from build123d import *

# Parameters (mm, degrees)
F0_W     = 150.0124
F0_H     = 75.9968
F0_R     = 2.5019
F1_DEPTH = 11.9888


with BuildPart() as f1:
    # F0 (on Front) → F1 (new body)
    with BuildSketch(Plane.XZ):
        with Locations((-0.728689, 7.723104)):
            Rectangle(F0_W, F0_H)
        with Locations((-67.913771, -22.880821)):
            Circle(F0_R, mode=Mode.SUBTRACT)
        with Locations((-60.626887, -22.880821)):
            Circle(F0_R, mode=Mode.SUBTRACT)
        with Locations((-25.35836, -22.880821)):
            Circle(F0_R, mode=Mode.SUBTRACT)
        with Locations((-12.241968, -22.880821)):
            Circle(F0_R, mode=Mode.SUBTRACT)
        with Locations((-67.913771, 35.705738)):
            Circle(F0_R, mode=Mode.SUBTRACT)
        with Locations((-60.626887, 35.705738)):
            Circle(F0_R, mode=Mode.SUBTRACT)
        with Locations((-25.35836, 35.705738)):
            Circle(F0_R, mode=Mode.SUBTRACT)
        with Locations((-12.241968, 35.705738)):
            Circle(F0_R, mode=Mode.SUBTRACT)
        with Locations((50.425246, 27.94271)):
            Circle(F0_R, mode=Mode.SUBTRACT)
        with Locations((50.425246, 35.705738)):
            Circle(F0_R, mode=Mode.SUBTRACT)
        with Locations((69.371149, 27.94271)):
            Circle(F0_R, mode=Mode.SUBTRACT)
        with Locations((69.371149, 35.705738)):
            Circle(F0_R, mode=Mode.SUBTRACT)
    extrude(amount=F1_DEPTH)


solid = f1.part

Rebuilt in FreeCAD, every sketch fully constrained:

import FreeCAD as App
import Part
import Sketcher

V = App.Vector
Q = App.Units.Quantity


def add_polygon(sketch, points):
    """Adds a closed chain of lines whose ends are joined by coincident constraints."""
    first, n = sketch.GeometryCount, len(points)
    for a, b in zip(points, points[1:] + points[:1]):
        sketch.addGeometry(Part.LineSegment(App.Vector(*a, 0), App.Vector(*b, 0)), False)
    for i in range(n):
        sketch.addConstraint(Sketcher.Constraint("Coincident", first + i, 2, first + (i + 1) % n, 1))

doc = App.newDocument("Part")
body = doc.addObject("PartDesign::Body", "Body")

sketch1 = body.newObject("Sketcher::SketchObject", "Sketch")
sketch1.AttachmentSupport = (doc.getObject("XZ_Plane"), [""])
sketch1.MapMode = "FlatFace"
add_polygon(sketch1, [(-75.7, 45.7), (-75.7, -30.3), (74.3, -30.3), (74.3, 45.7)])
sketch1.addGeometry(Part.Circle(V(-67.9, -22.9, 0), V(0, 0, 1), 2.5), False)
sketch1.addGeometry(Part.Circle(V(-60.6, -22.9, 0), V(0, 0, 1), 2.5), False)
sketch1.addGeometry(Part.Circle(V(-25.4, -22.9, 0), V(0, 0, 1), 2.5), False)
sketch1.addGeometry(Part.Circle(V(-12.2, -22.9, 0), V(0, 0, 1), 2.5), False)
sketch1.addGeometry(Part.Circle(V(-67.9, 35.7, 0), V(0, 0, 1), 2.5), False)
sketch1.addGeometry(Part.Circle(V(-60.6, 35.7, 0), V(0, 0, 1), 2.5), False)
sketch1.addGeometry(Part.Circle(V(-25.4, 35.7, 0), V(0, 0, 1), 2.5), False)
sketch1.addGeometry(Part.Circle(V(-12.2, 35.7, 0), V(0, 0, 1), 2.5), False)
sketch1.addGeometry(Part.Circle(V(50.4, 27.9, 0), V(0, 0, 1), 2.5), False)
sketch1.addGeometry(Part.Circle(V(69.4, 27.9, 0), V(0, 0, 1), 2.5), False)
sketch1.addGeometry(Part.Circle(V(50.4, 35.7, 0), V(0, 0, 1), 2.5), False)
sketch1.addGeometry(Part.Circle(V(69.4, 35.7, 0), V(0, 0, 1), 2.5), False)
sketch1.addConstraint(Sketcher.Constraint("Vertical", 0))
sketch1.addConstraint(Sketcher.Constraint("Horizontal", 1))
sketch1.addConstraint(Sketcher.Constraint("Vertical", 2))
sketch1.addConstraint(Sketcher.Constraint("Horizontal", 3))
sketch1.addConstraint(Sketcher.Constraint("Equal", 4, 5))
sketch1.addConstraint(Sketcher.Constraint("Equal", 5, 6))
sketch1.addConstraint(Sketcher.Constraint("Equal", 6, 7))
sketch1.addConstraint(Sketcher.Constraint("Equal", 7, 8))
sketch1.addConstraint(Sketcher.Constraint("Equal", 8, 9))
sketch1.addConstraint(Sketcher.Constraint("Equal", 9, 10))
sketch1.addConstraint(Sketcher.Constraint("Equal", 10, 11))
sketch1.addConstraint(Sketcher.Constraint("Equal", 11, 12))
sketch1.addConstraint(Sketcher.Constraint("Equal", 12, 13))
sketch1.addConstraint(Sketcher.Constraint("Equal", 13, 14))
sketch1.addConstraint(Sketcher.Constraint("Equal", 14, 15))
sketch1.addConstraint(Sketcher.Constraint("Horizontal", 4, 3, 5, 3))
sketch1.addConstraint(Sketcher.Constraint("Horizontal", 5, 3, 6, 3))
sketch1.addConstraint(Sketcher.Constraint("Horizontal", 6, 3, 7, 3))
sketch1.addConstraint(Sketcher.Constraint("Horizontal", 8, 3, 9, 3))
sketch1.addConstraint(Sketcher.Constraint("Horizontal", 9, 3, 10, 3))
sketch1.addConstraint(Sketcher.Constraint("Horizontal", 10, 3, 11, 3))
sketch1.addConstraint(Sketcher.Constraint("Horizontal", 12, 3, 13, 3))
sketch1.addConstraint(Sketcher.Constraint("Horizontal", 11, 3, 14, 3))
sketch1.addConstraint(Sketcher.Constraint("Horizontal", 14, 3, 15, 3))
sketch1.addConstraint(Sketcher.Constraint("Vertical", 4, 3, 8, 3))
sketch1.addConstraint(Sketcher.Constraint("Vertical", 5, 3, 9, 3))
sketch1.addConstraint(Sketcher.Constraint("Vertical", 6, 3, 10, 3))
sketch1.addConstraint(Sketcher.Constraint("Vertical", 7, 3, 11, 3))
sketch1.addConstraint(Sketcher.Constraint("Vertical", 12, 3, 14, 3))
sketch1.addConstraint(Sketcher.Constraint("Vertical", 13, 3, 15, 3))
sketch1.addConstraint(Sketcher.Constraint("Diameter", 4, Q("0.197 in")))
sketch1.addConstraint(Sketcher.Constraint("DistanceX", 1, 1, 1, 2, Q("5.906 in")))
sketch1.addConstraint(Sketcher.Constraint("DistanceY", 0, 2, 0, 1, Q("2.992 in")))
sketch1.addConstraint(Sketcher.Constraint("DistanceX", 0, 2, 5, 3, 15.108002))
sketch1.addConstraint(Sketcher.Constraint("DistanceX", 4, 3, -1, 1, 67.913771))
sketch1.addConstraint(Sketcher.Constraint("DistanceY", 4, 3, -1, 1, 22.880821))
sketch1.addConstraint(Sketcher.Constraint("DistanceX", 6, 3, -1, 1, 25.35836))
sketch1.addConstraint(Sketcher.Constraint("DistanceY", -1, 1, 12, 3, 27.94271))
sketch1.addConstraint(Sketcher.Constraint("DistanceX", -1, 1, 13, 3, 69.371149))
sketch1.addConstraint(Sketcher.Constraint("DistanceX", 0, 2, -1, 1, 75.734889))
sketch1.addConstraint(Sketcher.Constraint("DistanceX", 5, 3, 7, 3, 48.384919))
sketch1.addConstraint(Sketcher.Constraint("DistanceY", 4, 3, 8, 3, 58.586559))
sketch1.addConstraint(Sketcher.Constraint("DistanceX", -1, 1, 12, 3, 50.425246))
sketch1.addConstraint(Sketcher.Constraint("DistanceY", 0, 2, -1, 1, 30.275296))
pad1 = body.newObject("PartDesign::Pad", "Pad")
pad1.Profile = sketch1
pad1.Length = Q("0.472 in")

doc.recompute()
